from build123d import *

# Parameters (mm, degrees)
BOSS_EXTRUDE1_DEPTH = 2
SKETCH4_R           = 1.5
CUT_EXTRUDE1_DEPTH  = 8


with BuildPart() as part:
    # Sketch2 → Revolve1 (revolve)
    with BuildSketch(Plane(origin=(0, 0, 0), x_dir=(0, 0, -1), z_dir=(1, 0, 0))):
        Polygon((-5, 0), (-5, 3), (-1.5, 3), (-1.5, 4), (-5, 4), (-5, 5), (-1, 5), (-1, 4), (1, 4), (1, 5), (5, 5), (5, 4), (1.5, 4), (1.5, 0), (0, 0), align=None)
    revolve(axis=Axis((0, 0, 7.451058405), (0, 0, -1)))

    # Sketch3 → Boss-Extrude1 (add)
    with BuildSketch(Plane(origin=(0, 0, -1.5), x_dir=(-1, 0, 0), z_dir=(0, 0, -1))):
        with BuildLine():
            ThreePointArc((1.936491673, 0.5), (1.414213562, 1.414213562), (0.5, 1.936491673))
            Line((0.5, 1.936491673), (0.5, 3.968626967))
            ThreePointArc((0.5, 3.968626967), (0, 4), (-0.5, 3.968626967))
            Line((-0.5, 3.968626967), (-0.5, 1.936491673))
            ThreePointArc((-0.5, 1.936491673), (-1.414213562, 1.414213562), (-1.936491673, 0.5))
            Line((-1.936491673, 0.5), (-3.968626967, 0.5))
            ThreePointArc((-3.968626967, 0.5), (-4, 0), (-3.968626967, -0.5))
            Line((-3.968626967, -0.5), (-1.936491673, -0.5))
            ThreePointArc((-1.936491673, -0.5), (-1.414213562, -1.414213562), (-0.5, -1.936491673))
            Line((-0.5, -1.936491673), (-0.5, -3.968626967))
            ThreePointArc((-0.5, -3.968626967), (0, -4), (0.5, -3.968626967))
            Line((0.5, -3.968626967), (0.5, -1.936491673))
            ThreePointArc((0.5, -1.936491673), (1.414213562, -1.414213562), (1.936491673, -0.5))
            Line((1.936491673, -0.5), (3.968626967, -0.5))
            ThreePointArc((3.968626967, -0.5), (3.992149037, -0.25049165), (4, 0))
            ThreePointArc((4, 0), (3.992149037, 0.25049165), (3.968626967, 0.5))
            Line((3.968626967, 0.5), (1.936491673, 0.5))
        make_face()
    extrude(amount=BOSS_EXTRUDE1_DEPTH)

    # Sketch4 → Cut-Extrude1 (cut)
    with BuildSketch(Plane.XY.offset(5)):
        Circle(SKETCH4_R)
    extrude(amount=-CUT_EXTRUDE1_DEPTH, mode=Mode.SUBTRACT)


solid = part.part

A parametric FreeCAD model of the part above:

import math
import FreeCAD as App
import Part
import Sketcher

V = App.Vector
Q = App.Units.Quantity

doc = App.newDocument("Part")
body = doc.addObject("PartDesign::Body", "Body")

sketch1 = body.newObject("Sketcher::SketchObject", "Sketch")
sketch1.AttachmentSupport = (doc.getObject("YZ_Plane"), [""])
sketch1.MapMode = "FlatFace"
sketch1.addGeometry(Part.LineSegment(V(3, 5, 0), V(0, 5, 0)), False)
sketch1.addGeometry(Part.LineSegment(V(0, 5, 0), V(0, -1.5, 0)), False)
sketch1.addGeometry(Part.LineSegment(V(0, -1.5, 0), V(4, -1.5, 0)), False)
sketch1.addGeometry(Part.LineSegment(V(4, -1.5, 0), V(4, -5, 0)), False)
sketch1.addGeometry(Part.LineSegment(V(4, -5, 0), V(5, -5, 0)), False)
sketch1.addGeometry(Part.LineSegment(V(5, -5, 0), V(5, -1, 0)), False)
sketch1.addGeometry(Part.LineSegment(V(5, -1, 0), V(4, -1, 0)), False)
sketch1.addGeometry(Part.LineSegment(V(4, -1, 0), V(4, 1, 0)), False)
sketch1.addGeometry(Part.LineSegment(V(4, 1, 0), V(5, 1, 0)), False)
sketch1.addGeometry(Part.LineSegment(V(5, 1, 0), V(5, 5, 0)), False)
sketch1.addGeometry(Part.LineSegment(V(5, 5, 0), V(4, 5, 0)), False)
sketch1.addGeometry(Part.LineSegment(V(4, 5, 0), V(4, 1.5, 0)), False)
sketch1.addGeometry(Part.LineSegment(V(4, 1.5, 0), V(3, 1.5, 0)), False)
sketch1.addGeometry(Part.LineSegment(V(3, 1.5, 0), V(3, 5, 0)), False)
sketch1.addConstraint(Sketcher.Constraint("Coincident", 0, 2, 1, 1))
sketch1.addConstraint(Sketcher.Constraint("Coincident", 1, 2, 2, 1))
sketch1.addConstraint(Sketcher.Constraint("Coincident", 2, 2, 3, 1))
sketch1.addConstraint(Sketcher.Constraint("Coincident", 3, 2, 4, 1))
sketch1.addConstraint(Sketcher.Constraint("Coincident", 4, 2, 5, 1))
sketch1.addConstraint(Sketcher.Constraint("Coincident", 5, 2, 6, 1))
sketch1.addConstraint(Sketcher.Constraint("Coincident", 6, 2, 7, 1))
sketch1.addConstraint(Sketcher.Constraint("Coincident", 7, 2, 8, 1))
sketch1.addConstraint(Sketcher.Constraint("Coincident", 8, 2, 9, 1))
sketch1.addConstraint(Sketcher.Constraint("Coincident", 9, 2, 10, 1))
sketch1.addConstraint(Sketcher.Constraint("Coincident", 10, 2, 11, 1))
sketch1.addConstraint(Sketcher.Constraint("Coincident", 11, 2, 12, 1))
sketch1.addConstraint(Sketcher.Constraint("Coincident", 12, 2, 13, 1))
sketch1.addConstraint(Sketcher.Constraint("Coincident", 13, 2, 0, 1))
sketch1.addConstraint(Sketcher.Constraint("Horizontal", 0))
sketch1.addConstraint(Sketcher.Constraint("Vertical", 1))
sketch1.addConstraint(Sketcher.Constraint("Horizontal", 2))
sketch1.addConstraint(Sketcher.Constraint("Vertical", 3))
sketch1.addConstraint(Sketcher.Constraint("Horizontal", 4))
sketch1.addConstraint(Sketcher.Constraint("Vertical", 5))
sketch1.addConstraint(Sketcher.Constraint("Horizontal", 6))
sketch1.addConstraint(Sketcher.Constraint("Vertical", 7))
sketch1.addConstraint(Sketcher.Constraint("Horizontal", 8))
sketch1.addConstraint(Sketcher.Constraint("Vertical", 9))
sketch1.addConstraint(Sketcher.Constraint("Horizontal", 10))
sketch1.addConstraint(Sketcher.Constraint("Vertical", 11))
sketch1.addConstraint(Sketcher.Constraint("Horizontal", 12))
sketch1.addConstraint(Sketcher.Constraint("Vertical", 13))
sketch1.addConstraint(Sketcher.Constraint("Symmetric", 5, 2, 8, 2, -1))
sketch1.addConstraint(Sketcher.Constraint("Symmetric", 3, 2, 10, 2, -1))
sketch1.addConstraint(Sketcher.Constraint("PointOnObject", 0, 2, -2))
sketch1.addConstraint(Sketcher.Constraint("Horizontal", 0, 2, 9, 2))
sketch1.addConstraint(Sketcher.Constraint("Vertical", 3, 2, 6, 2))
sketch1.addConstraint(Sketcher.Constraint("Equal", 10, 12))
sketch1.addConstraint(Sketcher.Constraint("Equal", 2, 5))
sketch1.addConstraint(Sketcher.Constraint("Equal", 3, 11))
sketch1.addConstraint(Sketcher.Constraint("DistanceX", 0, 2, 0, 1, Q("3 mm")))
sketch1.addConstraint(Sketcher.Constraint("DistanceX", 2, 1, 2, 2, Q("4 mm")))
sketch1.addConstraint(Sketcher.Constraint("DistanceY", 7, 1, 7, 2, Q("2 mm")))
sketch1.addConstraint(Sketcher.Constraint("DistanceY", 1, 2, 1, 1, Q("6.5 mm")))
revolution = body.newObject("PartDesign::Revolution", "Revolution")
revolution.Profile = sketch1
revolution.ReferenceAxis = (sketch1, ["V_Axis"])
revolution.Angle = 360

sketch2 = body.newObject("Sketcher::SketchObject", "Sketch001")
sketch2.AttachmentSupport = (doc.getObject("XY_Plane"), [""])
sketch2.MapMode = "FlatFace"
sketch2.AttachmentOffset = App.Placement(V(0, 0, -1.5), App.Rotation())
sketch2.addGeometry(Part.ArcOfCircle(Part.Circle(V(0, 0, 0), V(0, 0, 1), 2), math.radians(104), math.radians(166)), False)
sketch2.addGeometry(Part.LineSegment(V(-0.5, 1.9, 0), V(-0.5, 4, 0)), False)
sketch2.addGeometry(Part.ArcOfCircle(Part.Circle(V(0, 0, 0), V(0, 0, 1), 4), math.radians(82.82), math.radians(97.18)), False)
sketch2.addGeometry(Part.LineSegment(V(0.5, 4, 0), V(0.5, 1.9, 0)), False)
sketch2.addGeometry(Part.ArcOfCircle(Part.Circle(V(0, 0, 0), V(0, 0, 1), 2), math.radians(14), math.radians(76)), False)
sketch2.addGeometry(Part.LineSegment(V(1.9, 0.5, 0), V(4, 0.5, 0)), False)
sketch2.addGeometry(Part.ArcOfCircle(Part.Circle(V(0, 0, 0), V(0, 0, 1), 4), math.radians(-7.18), math.radians(7.18)), False)
sketch2.addGeometry(Part.LineSegment(V(4, -0.5, 0), V(1.9, -0.5, 0)), False)
sketch2.addGeometry(Part.ArcOfCircle(Part.Circle(V(0, 0, 0), V(0, 0, 1), 2), math.radians(-76), math.radians(-14)), False)
sketch2.addGeometry(Part.LineSegment(V(0.5, -1.9, 0), V(0.5, -4, 0)), False)
sketch2.addGeometry(Part.ArcOfCircle(Part.Circle(V(0, 0, 0), V(0, 0, 1), 4), math.radians(-97.18), math.radians(-82.82)), False)
sketch2.addGeometry(Part.LineSegment(V(-0.5, -4, 0), V(-0.5, -1.9, 0)), False)
sketch2.addGeometry(Part.ArcOfCircle(Part.Circle(V(0, 0, 0), V(0, 0, 1), 2), math.radians(-166), math.radians(-104)), False)
sketch2.addGeometry(Part.LineSegment(V(-1.9, -0.5, 0), V(-4, -0.5, 0)), False)
sketch2.addGeometry(Part.ArcOfCircle(Part.Circle(V(0, 0, 0), V(0, 0, 1), 4), math.radians(-180), math.radians(-172.82)), False)
sketch2.addGeometry(Part.ArcOfCircle(Part.Circle(V(0, 0, 0), V(0, 0, 1), 4), math.radians(172.82), math.radians(180)), False)
sketch2.addGeometry(Part.LineSegment(V(-4, 0.5, 0), V(-1.9, 0.5, 0)), False)
sketch2.addConstraint(Sketcher.Constraint("Coincident", 0, 1, 1, 1))
sketch2.addConstraint(Sketcher.Constraint("Coincident", 1, 2, 2, 2))
sketch2.addConstraint(Sketcher.Constraint("Coincident", 2, 1, 3, 1))
sketch2.addConstraint(Sketcher.Constraint("Coincident", 3, 2, 4, 2))
sketch2.addConstraint(Sketcher.Constraint("Coincident", 4, 1, 5, 1))
sketch2.addConstraint(Sketcher.Constraint("Coincident", 5, 2, 6, 2))
sketch2.addConstraint(Sketcher.Constraint("Coincident", 6, 1, 7, 1))
sketch2.addConstraint(Sketcher.Constraint("Coincident", 7, 2, 8, 2))
sketch2.addConstraint(Sketcher.Constraint("Coincident", 8, 1, 9, 1))
sketch2.addConstraint(Sketcher.Constraint("Coincident", 9, 2, 10, 2))
sketch2.addConstraint(Sketcher.Constraint("Coincident", 10, 1, 11, 1))
sketch2.addConstraint(Sketcher.Constraint("Coincident", 11, 2, 12, 2))
sketch2.addConstraint(Sketcher.Constraint("Coincident", 12, 1, 13, 1))
sketch2.addConstraint(Sketcher.Constraint("Coincident", 13, 2, 14, 2))
sketch2.addConstraint(Sketcher.Constraint("Tangent", 14, 1, 15, 2))
sketch2.addConstraint(Sketcher.Constraint("Coincident", 15, 1, 16, 1))
sketch2.addConstraint(Sketcher.Constraint("Coincident", 16, 2, 0, 2))
sketch2.addConstraint(Sketcher.Constraint("Vertical", 1))
sketch2.addConstraint(Sketcher.Constraint("Vertical", 3))
sketch2.addConstraint(Sketcher.Constraint("Horizontal", 5))
sketch2.addConstraint(Sketcher.Constraint("Horizontal", 7))
sketch2.addConstraint(Sketcher.Constraint("Vertical", 9))
sketch2.addConstraint(Sketcher.Constraint("Vertical", 11))
sketch2.addConstraint(Sketcher.Constraint("Horizontal", 13))
sketch2.addConstraint(Sketcher.Constraint("Horizontal", 16))
sketch2.addConstraint(Sketcher.Constraint("Coincident", 0, 3, -1, 1))
sketch2.addConstraint(Sketcher.Constraint("Coincident", 2, 3, -1, 1))
sketch2.addConstraint(Sketcher.Constraint("Coincident", 4, 3, -1, 1))
sketch2.addConstraint(Sketcher.Constraint("Coincident", 6, 3, -1, 1))
sketch2.addConstraint(Sketcher.Constraint("Coincident", 8, 3, -1, 1))
sketch2.addConstraint(Sketcher.Constraint("Coincident", 10, 3, -1, 1))
sketch2.addConstraint(Sketcher.Constraint("Coincident", 12, 3, -1, 1))
sketch2.addConstraint(Sketcher.Constraint("Coincident", 14, 3, -1, 1))
sketch2.addConstraint(Sketcher.Constraint("Equal", 0, 4))
sketch2.addConstraint(Sketcher.Constraint("Equal", 2, 6))
sketch2.addConstraint(Sketcher.Constraint("Equal", 4, 8))
sketch2.addConstraint(Sketcher.Constraint("Equal", 6, 10))
sketch2.addConstraint(Sketcher.Constraint("Equal", 8, 12))
sketch2.addConstraint(Sketcher.Constraint("Equal", 10, 14))
sketch2.addConstraint(Sketcher.Constraint("Equal", 14, 15))
sketch2.addConstraint(Sketcher.Constraint("PointOnObject", 14, 1, -1))
sketch2.addConstraint(Sketcher.Constraint("Horizontal", 1, 2, 2, 1))
sketch2.addConstraint(Sketcher.Constraint("Horizontal", 9, 2, 10, 1))
sketch2.addConstraint(Sketcher.Constraint("Horizontal", 7, 2, 12, 1))
sketch2.addConstraint(Sketcher.Constraint("Horizontal", 5, 2, 15, 1))
sketch2.addConstraint(Sketcher.Constraint("Vertical", 5, 2, 6, 1))
sketch2.addConstraint(Sketcher.Constraint("Vertical", 3, 2, 8, 1))
sketch2.addConstraint(Sketcher.Constraint("Equal", 16, 1))
sketch2.addConstraint(Sketcher.Constraint("Radius", 0, Q("2 mm")))
sketch2.addConstraint(Sketcher.Constraint("Radius", 2, Q("4 mm")))
sketch2.addConstraint(Sketcher.Constraint("DistanceX", 1, 2, 2, 1, Q("1 mm")))
pad1 = body.newObject("PartDesign::Pad", "Pad")
pad1.Profile = sketch2
pad1.Length = 2
pad1.Reversed = True

sketch3 = body.newObject("Sketcher::SketchObject", "Sketch002")
sketch3.AttachmentSupport = (doc.getObject("XY_Plane"), [""])
sketch3.MapMode = "FlatFace"
sketch3.AttachmentOffset = App.Placement(V(0, 0, 5), App.Rotation())
sketch3.addGeometry(Part.Circle(V(0, 0, 0), V(0, 0, 1), 1.5), False)
sketch3.addConstraint(Sketcher.Constraint("Coincident", 0, 3, -1, 1))
sketch3.addConstraint(Sketcher.Constraint("Diameter", 0, Q("3 mm")))
pocket1 = body.newObject("PartDesign::Pocket", "Pocket")
pocket1.Profile = sketch3
pocket1.Length = 8

doc.recompute()
